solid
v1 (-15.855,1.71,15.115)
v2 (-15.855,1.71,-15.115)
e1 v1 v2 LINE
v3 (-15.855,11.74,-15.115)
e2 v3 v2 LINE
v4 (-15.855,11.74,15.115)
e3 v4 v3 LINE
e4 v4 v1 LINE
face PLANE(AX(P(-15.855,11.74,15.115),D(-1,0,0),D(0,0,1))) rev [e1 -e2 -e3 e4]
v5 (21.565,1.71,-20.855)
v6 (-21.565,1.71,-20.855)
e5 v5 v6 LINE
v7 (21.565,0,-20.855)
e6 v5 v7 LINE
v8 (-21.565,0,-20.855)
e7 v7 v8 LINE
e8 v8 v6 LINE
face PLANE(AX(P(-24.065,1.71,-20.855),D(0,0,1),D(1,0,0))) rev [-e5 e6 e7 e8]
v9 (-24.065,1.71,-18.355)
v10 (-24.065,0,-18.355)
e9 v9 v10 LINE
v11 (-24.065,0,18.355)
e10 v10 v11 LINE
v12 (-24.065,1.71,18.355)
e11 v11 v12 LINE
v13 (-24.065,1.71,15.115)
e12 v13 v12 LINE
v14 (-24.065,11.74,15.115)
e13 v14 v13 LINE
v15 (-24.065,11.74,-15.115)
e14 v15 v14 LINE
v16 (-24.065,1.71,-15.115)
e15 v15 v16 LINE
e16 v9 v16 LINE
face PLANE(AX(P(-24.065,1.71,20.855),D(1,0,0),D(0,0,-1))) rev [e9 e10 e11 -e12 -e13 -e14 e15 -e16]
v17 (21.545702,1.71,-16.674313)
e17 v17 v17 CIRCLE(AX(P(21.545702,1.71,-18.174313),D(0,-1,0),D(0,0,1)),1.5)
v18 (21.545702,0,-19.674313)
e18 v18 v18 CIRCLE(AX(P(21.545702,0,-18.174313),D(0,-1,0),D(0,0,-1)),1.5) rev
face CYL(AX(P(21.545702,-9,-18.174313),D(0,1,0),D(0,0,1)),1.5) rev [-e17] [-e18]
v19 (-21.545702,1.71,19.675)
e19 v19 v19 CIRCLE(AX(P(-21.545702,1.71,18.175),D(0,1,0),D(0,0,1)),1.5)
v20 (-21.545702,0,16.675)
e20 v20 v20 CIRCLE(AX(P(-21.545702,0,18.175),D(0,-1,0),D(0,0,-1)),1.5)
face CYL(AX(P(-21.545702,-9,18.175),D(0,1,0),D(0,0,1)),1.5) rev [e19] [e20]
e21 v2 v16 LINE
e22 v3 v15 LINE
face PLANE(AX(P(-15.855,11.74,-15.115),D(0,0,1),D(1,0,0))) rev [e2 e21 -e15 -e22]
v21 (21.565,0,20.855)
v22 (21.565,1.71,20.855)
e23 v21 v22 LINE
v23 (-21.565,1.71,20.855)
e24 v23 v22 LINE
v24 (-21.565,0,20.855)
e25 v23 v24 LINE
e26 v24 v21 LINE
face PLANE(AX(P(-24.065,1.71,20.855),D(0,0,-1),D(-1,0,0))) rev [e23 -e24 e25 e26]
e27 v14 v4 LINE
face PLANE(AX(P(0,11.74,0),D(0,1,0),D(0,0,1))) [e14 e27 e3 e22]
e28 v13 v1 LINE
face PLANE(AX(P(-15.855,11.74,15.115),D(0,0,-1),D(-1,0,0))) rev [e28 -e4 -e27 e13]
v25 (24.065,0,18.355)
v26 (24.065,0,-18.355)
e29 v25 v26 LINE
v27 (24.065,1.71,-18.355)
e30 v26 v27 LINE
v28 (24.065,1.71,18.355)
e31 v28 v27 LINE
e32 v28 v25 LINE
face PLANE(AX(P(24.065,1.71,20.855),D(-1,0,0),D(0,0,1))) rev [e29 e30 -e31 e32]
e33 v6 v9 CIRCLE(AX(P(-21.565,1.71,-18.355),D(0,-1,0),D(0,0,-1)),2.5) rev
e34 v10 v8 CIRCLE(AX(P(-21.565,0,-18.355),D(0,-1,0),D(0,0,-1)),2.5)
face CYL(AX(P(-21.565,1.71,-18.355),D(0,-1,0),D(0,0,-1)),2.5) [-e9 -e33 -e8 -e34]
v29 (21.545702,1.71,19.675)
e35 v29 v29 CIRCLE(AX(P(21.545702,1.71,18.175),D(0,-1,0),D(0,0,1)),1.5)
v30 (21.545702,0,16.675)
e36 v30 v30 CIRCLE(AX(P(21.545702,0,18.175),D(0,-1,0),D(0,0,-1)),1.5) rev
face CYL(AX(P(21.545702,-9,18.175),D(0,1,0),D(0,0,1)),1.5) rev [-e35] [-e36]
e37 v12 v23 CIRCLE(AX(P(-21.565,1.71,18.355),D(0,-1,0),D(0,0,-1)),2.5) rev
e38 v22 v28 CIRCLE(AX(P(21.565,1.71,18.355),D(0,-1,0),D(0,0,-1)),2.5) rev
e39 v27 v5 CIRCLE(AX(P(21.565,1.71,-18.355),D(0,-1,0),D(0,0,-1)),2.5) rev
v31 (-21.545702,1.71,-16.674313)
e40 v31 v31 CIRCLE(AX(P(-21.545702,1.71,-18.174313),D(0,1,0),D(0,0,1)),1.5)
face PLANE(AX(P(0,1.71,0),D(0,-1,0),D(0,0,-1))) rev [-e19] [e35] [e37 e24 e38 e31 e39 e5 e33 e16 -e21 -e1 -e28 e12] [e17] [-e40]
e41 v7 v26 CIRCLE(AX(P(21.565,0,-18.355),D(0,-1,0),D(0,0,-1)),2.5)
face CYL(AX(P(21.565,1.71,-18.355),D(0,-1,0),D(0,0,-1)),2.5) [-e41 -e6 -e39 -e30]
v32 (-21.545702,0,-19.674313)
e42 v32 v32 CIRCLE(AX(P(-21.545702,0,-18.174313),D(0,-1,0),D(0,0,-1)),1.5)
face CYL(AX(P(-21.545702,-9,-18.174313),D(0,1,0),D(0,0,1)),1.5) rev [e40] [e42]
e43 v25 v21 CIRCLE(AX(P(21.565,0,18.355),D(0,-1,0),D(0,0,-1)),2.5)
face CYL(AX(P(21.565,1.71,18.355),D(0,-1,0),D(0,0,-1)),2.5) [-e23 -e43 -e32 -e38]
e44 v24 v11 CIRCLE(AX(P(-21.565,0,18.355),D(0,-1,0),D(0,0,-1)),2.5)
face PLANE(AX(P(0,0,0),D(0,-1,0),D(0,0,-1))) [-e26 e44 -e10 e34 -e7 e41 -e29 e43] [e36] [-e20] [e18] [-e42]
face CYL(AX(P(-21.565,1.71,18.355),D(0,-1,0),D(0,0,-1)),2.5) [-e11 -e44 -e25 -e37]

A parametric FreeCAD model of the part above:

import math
import FreeCAD as App
import Part
import Sketcher

V = App.Vector
Q = App.Units.Quantity


def edges_at(feature, points):
    """Names of the edges that pass closest to the given points."""
    edges = feature.Shape.Edges
    near = lambda p: min(range(len(edges)), key=lambda i: edges[i].distToShape(Part.Vertex(*p))[0])
    return sorted({f"Edge{near(p) + 1}" for p in points})

doc = App.newDocument("Part")
body = doc.addObject("PartDesign::Body", "Body")

# Sketch on XZ plane
sketch1 = body.newObject("Sketcher::SketchObject", "Sketch")
sketch1.AttachmentSupport = (doc.getObject("XZ_Plane"), [""])
sketch1.MapMode = "FlatFace"
sketch1.addGeometry([
    Part.LineSegment(V(-24, -21, 0), V(-24, 21, 0)),
    Part.LineSegment(V(-24, 21, 0), V(24, 21, 0)),
    Part.LineSegment(V(24, 21, 0), V(24, -21, 0)),
    Part.LineSegment(V(24, -21, 0), V(-24, -21, 0)),
], False)
sketch1.addConstraint([
    Sketcher.Constraint("Coincident", 0, 2, 1, 1),
    Sketcher.Constraint("Coincident", 1, 2, 2, 1),
    Sketcher.Constraint("Coincident", 2, 2, 3, 1),
    Sketcher.Constraint("Coincident", 3, 2, 0, 1),
    Sketcher.Constraint("Vertical", 0),
    Sketcher.Constraint("Horizontal", 1),
    Sketcher.Constraint("Vertical", 2),
    Sketcher.Constraint("Horizontal", 3),
    Sketcher.Constraint("Symmetric", 0, 2, 2, 2, -1, 1),
    Sketcher.Constraint("DistanceX", 1, 1, 1, 2, Q("48.13 mm")),
    Sketcher.Constraint("DistanceY", 0, 1, 0, 2, Q("41.71 mm")),
])
pad1 = body.newObject("PartDesign::Pad", "Pad")
pad1.Profile = sketch1
pad1.Length = 1.71
pad1.Reversed = True

# Sketch on XZ plane
sketch2 = body.newObject("Sketcher::SketchObject", "Sketch001")
sketch2.AttachmentSupport = (doc.getObject("XZ_Plane"), [""])
sketch2.MapMode = "FlatFace"
sketch2.AttachmentOffset = App.Placement(V(0, 0, -1.71), App.Rotation())
sketch2.addGeometry(Part.Circle(V(-21.5, -18.2, 0), V(0, 0, 1), 1.5), False)
sketch2.addConstraint([
    Sketcher.Constraint("Diameter", 0, Q("3 mm")),
    Sketcher.Constraint("DistanceX", 0, 3, -1, 1, Q("21.545702 mm")),
    Sketcher.Constraint("DistanceY", 0, 3, -1, 1, Q("18.174313 mm")),
])
pocket1 = body.newObject("PartDesign::Pocket", "Pocket")
pocket1.Profile = sketch2
pocket1.Length = 10.71
pocket1.Reversed = True

# Sketch on XZ plane
sketch3 = body.newObject("Sketcher::SketchObject", "Sketch002")
sketch3.AttachmentSupport = (doc.getObject("XZ_Plane"), [""])
sketch3.MapMode = "FlatFace"
sketch3.AttachmentOffset = App.Placement(V(0, 0, -1.71), App.Rotation())
sketch3.addGeometry([
    Part.ArcOfCircle(Part.Circle(V(-21.5, 18.2, 0), V(0, 0, 1), 1.5), math.radians(-90), math.radians(0)),
    Part.ArcOfCircle(Part.Circle(V(-21.5, 18.2, 0), V(0, 0, 1), 1.5), math.radians(90), math.radians(270)),
    Part.ArcOfCircle(Part.Circle(V(-21.5, 18.2, 0), V(0, 0, 1), 1.5), math.radians(0), math.radians(90)),
], False)
sketch3.addConstraint([
    Sketcher.Constraint("Tangent", 0, 1, 1, 2),
    Sketcher.Constraint("Tangent", 1, 1, 2, 2),
    Sketcher.Constraint("Tangent", 2, 1, 0, 2),
    Sketcher.Constraint("Horizontal", 1, 3, 2, 1),
    Sketcher.Constraint("Vertical", 2, 3, 0, 1),
    Sketcher.Constraint("Vertical", 0, 1, 1, 1),
    Sketcher.Constraint("Radius", 0, Q("1.5 mm")),
    Sketcher.Constraint("DistanceY", -1, 1, 0, 3, Q("18.175 mm")),
    Sketcher.Constraint("DistanceX", 0, 3, -1, 1, Q("21.545702 mm")),
])
pocket2 = body.newObject("PartDesign::Pocket", "Pocket001")
pocket2.Profile = sketch3
pocket2.Length = 10.71
pocket2.Reversed = True
doc.recompute()

fillet = body.newObject("PartDesign::Fillet", "Fillet")
fillet.Base = (pocket2, edges_at(pocket2, [
    (24.065, 0.855, 20.855),
    (-24.065, 0.855, 20.855),
    (-24.065, 0.855, -20.855),
    (24.065, 0.855, -20.855),
]))
fillet.Radius = 2.5
doc.recompute()

mirrored = body.newObject("PartDesign::Mirrored", "Mirrored")
mirrored.Originals = [pocket1, pocket2]
mirrored.MirrorPlane = (doc.getObject("YZ_Plane"), [""])
body.Tip = mirrored

# Sketch on XZ plane
sketch4 = body.newObject("Sketcher::SketchObject", "Sketch003")
sketch4.AttachmentSupport = (doc.getObject("XZ_Plane"), [""])
sketch4.MapMode = "FlatFace"
sketch4.AttachmentOffset = App.Placement(V(0, 0, -1.71), App.Rotation())
sketch4.addGeometry([
    Part.LineSegment(V(-24, -15, 0), V(-24, 15, 0)),
    Part.LineSegment(V(-24, 15, 0), V(-16, 15, 0)),
    Part.LineSegment(V(-16, 15, 0), V(-16, -15, 0)),
    Part.LineSegment(V(-16, -15, 0), V(-24, -15, 0)),
], False)
sketch4.addConstraint([
    Sketcher.Constraint("Coincident", 0, 2, 1, 1),
    Sketcher.Constraint("Coincident", 1, 2, 2, 1),
    Sketcher.Constraint("Coincident", 2, 2, 3, 1),
    Sketcher.Constraint("Coincident", 3, 2, 0, 1),
    Sketcher.Constraint("Vertical", 0),
    Sketcher.Constraint("Horizontal", 1),
    Sketcher.Constraint("Vertical", 2),
    Sketcher.Constraint("Horizontal", 3),
    Sketcher.Constraint("DistanceX", 1, 1, 1, 2, Q("8.21 mm")),
    Sketcher.Constraint("DistanceY", 0, 1, 0, 2, Q("30.23 mm")),
    Sketcher.Constraint("DistanceX", 0, 2, -1, 1, Q("24.065 mm")),
    Sketcher.Constraint("DistanceY", -1, 1, 0, 2, Q("15.115 mm")),
])
pad2 = body.newObject("PartDesign::Pad", "Pad001")
pad2.Profile = sketch4
pad2.Length = 10.03
pad2.Reversed = True

doc.recompute()
